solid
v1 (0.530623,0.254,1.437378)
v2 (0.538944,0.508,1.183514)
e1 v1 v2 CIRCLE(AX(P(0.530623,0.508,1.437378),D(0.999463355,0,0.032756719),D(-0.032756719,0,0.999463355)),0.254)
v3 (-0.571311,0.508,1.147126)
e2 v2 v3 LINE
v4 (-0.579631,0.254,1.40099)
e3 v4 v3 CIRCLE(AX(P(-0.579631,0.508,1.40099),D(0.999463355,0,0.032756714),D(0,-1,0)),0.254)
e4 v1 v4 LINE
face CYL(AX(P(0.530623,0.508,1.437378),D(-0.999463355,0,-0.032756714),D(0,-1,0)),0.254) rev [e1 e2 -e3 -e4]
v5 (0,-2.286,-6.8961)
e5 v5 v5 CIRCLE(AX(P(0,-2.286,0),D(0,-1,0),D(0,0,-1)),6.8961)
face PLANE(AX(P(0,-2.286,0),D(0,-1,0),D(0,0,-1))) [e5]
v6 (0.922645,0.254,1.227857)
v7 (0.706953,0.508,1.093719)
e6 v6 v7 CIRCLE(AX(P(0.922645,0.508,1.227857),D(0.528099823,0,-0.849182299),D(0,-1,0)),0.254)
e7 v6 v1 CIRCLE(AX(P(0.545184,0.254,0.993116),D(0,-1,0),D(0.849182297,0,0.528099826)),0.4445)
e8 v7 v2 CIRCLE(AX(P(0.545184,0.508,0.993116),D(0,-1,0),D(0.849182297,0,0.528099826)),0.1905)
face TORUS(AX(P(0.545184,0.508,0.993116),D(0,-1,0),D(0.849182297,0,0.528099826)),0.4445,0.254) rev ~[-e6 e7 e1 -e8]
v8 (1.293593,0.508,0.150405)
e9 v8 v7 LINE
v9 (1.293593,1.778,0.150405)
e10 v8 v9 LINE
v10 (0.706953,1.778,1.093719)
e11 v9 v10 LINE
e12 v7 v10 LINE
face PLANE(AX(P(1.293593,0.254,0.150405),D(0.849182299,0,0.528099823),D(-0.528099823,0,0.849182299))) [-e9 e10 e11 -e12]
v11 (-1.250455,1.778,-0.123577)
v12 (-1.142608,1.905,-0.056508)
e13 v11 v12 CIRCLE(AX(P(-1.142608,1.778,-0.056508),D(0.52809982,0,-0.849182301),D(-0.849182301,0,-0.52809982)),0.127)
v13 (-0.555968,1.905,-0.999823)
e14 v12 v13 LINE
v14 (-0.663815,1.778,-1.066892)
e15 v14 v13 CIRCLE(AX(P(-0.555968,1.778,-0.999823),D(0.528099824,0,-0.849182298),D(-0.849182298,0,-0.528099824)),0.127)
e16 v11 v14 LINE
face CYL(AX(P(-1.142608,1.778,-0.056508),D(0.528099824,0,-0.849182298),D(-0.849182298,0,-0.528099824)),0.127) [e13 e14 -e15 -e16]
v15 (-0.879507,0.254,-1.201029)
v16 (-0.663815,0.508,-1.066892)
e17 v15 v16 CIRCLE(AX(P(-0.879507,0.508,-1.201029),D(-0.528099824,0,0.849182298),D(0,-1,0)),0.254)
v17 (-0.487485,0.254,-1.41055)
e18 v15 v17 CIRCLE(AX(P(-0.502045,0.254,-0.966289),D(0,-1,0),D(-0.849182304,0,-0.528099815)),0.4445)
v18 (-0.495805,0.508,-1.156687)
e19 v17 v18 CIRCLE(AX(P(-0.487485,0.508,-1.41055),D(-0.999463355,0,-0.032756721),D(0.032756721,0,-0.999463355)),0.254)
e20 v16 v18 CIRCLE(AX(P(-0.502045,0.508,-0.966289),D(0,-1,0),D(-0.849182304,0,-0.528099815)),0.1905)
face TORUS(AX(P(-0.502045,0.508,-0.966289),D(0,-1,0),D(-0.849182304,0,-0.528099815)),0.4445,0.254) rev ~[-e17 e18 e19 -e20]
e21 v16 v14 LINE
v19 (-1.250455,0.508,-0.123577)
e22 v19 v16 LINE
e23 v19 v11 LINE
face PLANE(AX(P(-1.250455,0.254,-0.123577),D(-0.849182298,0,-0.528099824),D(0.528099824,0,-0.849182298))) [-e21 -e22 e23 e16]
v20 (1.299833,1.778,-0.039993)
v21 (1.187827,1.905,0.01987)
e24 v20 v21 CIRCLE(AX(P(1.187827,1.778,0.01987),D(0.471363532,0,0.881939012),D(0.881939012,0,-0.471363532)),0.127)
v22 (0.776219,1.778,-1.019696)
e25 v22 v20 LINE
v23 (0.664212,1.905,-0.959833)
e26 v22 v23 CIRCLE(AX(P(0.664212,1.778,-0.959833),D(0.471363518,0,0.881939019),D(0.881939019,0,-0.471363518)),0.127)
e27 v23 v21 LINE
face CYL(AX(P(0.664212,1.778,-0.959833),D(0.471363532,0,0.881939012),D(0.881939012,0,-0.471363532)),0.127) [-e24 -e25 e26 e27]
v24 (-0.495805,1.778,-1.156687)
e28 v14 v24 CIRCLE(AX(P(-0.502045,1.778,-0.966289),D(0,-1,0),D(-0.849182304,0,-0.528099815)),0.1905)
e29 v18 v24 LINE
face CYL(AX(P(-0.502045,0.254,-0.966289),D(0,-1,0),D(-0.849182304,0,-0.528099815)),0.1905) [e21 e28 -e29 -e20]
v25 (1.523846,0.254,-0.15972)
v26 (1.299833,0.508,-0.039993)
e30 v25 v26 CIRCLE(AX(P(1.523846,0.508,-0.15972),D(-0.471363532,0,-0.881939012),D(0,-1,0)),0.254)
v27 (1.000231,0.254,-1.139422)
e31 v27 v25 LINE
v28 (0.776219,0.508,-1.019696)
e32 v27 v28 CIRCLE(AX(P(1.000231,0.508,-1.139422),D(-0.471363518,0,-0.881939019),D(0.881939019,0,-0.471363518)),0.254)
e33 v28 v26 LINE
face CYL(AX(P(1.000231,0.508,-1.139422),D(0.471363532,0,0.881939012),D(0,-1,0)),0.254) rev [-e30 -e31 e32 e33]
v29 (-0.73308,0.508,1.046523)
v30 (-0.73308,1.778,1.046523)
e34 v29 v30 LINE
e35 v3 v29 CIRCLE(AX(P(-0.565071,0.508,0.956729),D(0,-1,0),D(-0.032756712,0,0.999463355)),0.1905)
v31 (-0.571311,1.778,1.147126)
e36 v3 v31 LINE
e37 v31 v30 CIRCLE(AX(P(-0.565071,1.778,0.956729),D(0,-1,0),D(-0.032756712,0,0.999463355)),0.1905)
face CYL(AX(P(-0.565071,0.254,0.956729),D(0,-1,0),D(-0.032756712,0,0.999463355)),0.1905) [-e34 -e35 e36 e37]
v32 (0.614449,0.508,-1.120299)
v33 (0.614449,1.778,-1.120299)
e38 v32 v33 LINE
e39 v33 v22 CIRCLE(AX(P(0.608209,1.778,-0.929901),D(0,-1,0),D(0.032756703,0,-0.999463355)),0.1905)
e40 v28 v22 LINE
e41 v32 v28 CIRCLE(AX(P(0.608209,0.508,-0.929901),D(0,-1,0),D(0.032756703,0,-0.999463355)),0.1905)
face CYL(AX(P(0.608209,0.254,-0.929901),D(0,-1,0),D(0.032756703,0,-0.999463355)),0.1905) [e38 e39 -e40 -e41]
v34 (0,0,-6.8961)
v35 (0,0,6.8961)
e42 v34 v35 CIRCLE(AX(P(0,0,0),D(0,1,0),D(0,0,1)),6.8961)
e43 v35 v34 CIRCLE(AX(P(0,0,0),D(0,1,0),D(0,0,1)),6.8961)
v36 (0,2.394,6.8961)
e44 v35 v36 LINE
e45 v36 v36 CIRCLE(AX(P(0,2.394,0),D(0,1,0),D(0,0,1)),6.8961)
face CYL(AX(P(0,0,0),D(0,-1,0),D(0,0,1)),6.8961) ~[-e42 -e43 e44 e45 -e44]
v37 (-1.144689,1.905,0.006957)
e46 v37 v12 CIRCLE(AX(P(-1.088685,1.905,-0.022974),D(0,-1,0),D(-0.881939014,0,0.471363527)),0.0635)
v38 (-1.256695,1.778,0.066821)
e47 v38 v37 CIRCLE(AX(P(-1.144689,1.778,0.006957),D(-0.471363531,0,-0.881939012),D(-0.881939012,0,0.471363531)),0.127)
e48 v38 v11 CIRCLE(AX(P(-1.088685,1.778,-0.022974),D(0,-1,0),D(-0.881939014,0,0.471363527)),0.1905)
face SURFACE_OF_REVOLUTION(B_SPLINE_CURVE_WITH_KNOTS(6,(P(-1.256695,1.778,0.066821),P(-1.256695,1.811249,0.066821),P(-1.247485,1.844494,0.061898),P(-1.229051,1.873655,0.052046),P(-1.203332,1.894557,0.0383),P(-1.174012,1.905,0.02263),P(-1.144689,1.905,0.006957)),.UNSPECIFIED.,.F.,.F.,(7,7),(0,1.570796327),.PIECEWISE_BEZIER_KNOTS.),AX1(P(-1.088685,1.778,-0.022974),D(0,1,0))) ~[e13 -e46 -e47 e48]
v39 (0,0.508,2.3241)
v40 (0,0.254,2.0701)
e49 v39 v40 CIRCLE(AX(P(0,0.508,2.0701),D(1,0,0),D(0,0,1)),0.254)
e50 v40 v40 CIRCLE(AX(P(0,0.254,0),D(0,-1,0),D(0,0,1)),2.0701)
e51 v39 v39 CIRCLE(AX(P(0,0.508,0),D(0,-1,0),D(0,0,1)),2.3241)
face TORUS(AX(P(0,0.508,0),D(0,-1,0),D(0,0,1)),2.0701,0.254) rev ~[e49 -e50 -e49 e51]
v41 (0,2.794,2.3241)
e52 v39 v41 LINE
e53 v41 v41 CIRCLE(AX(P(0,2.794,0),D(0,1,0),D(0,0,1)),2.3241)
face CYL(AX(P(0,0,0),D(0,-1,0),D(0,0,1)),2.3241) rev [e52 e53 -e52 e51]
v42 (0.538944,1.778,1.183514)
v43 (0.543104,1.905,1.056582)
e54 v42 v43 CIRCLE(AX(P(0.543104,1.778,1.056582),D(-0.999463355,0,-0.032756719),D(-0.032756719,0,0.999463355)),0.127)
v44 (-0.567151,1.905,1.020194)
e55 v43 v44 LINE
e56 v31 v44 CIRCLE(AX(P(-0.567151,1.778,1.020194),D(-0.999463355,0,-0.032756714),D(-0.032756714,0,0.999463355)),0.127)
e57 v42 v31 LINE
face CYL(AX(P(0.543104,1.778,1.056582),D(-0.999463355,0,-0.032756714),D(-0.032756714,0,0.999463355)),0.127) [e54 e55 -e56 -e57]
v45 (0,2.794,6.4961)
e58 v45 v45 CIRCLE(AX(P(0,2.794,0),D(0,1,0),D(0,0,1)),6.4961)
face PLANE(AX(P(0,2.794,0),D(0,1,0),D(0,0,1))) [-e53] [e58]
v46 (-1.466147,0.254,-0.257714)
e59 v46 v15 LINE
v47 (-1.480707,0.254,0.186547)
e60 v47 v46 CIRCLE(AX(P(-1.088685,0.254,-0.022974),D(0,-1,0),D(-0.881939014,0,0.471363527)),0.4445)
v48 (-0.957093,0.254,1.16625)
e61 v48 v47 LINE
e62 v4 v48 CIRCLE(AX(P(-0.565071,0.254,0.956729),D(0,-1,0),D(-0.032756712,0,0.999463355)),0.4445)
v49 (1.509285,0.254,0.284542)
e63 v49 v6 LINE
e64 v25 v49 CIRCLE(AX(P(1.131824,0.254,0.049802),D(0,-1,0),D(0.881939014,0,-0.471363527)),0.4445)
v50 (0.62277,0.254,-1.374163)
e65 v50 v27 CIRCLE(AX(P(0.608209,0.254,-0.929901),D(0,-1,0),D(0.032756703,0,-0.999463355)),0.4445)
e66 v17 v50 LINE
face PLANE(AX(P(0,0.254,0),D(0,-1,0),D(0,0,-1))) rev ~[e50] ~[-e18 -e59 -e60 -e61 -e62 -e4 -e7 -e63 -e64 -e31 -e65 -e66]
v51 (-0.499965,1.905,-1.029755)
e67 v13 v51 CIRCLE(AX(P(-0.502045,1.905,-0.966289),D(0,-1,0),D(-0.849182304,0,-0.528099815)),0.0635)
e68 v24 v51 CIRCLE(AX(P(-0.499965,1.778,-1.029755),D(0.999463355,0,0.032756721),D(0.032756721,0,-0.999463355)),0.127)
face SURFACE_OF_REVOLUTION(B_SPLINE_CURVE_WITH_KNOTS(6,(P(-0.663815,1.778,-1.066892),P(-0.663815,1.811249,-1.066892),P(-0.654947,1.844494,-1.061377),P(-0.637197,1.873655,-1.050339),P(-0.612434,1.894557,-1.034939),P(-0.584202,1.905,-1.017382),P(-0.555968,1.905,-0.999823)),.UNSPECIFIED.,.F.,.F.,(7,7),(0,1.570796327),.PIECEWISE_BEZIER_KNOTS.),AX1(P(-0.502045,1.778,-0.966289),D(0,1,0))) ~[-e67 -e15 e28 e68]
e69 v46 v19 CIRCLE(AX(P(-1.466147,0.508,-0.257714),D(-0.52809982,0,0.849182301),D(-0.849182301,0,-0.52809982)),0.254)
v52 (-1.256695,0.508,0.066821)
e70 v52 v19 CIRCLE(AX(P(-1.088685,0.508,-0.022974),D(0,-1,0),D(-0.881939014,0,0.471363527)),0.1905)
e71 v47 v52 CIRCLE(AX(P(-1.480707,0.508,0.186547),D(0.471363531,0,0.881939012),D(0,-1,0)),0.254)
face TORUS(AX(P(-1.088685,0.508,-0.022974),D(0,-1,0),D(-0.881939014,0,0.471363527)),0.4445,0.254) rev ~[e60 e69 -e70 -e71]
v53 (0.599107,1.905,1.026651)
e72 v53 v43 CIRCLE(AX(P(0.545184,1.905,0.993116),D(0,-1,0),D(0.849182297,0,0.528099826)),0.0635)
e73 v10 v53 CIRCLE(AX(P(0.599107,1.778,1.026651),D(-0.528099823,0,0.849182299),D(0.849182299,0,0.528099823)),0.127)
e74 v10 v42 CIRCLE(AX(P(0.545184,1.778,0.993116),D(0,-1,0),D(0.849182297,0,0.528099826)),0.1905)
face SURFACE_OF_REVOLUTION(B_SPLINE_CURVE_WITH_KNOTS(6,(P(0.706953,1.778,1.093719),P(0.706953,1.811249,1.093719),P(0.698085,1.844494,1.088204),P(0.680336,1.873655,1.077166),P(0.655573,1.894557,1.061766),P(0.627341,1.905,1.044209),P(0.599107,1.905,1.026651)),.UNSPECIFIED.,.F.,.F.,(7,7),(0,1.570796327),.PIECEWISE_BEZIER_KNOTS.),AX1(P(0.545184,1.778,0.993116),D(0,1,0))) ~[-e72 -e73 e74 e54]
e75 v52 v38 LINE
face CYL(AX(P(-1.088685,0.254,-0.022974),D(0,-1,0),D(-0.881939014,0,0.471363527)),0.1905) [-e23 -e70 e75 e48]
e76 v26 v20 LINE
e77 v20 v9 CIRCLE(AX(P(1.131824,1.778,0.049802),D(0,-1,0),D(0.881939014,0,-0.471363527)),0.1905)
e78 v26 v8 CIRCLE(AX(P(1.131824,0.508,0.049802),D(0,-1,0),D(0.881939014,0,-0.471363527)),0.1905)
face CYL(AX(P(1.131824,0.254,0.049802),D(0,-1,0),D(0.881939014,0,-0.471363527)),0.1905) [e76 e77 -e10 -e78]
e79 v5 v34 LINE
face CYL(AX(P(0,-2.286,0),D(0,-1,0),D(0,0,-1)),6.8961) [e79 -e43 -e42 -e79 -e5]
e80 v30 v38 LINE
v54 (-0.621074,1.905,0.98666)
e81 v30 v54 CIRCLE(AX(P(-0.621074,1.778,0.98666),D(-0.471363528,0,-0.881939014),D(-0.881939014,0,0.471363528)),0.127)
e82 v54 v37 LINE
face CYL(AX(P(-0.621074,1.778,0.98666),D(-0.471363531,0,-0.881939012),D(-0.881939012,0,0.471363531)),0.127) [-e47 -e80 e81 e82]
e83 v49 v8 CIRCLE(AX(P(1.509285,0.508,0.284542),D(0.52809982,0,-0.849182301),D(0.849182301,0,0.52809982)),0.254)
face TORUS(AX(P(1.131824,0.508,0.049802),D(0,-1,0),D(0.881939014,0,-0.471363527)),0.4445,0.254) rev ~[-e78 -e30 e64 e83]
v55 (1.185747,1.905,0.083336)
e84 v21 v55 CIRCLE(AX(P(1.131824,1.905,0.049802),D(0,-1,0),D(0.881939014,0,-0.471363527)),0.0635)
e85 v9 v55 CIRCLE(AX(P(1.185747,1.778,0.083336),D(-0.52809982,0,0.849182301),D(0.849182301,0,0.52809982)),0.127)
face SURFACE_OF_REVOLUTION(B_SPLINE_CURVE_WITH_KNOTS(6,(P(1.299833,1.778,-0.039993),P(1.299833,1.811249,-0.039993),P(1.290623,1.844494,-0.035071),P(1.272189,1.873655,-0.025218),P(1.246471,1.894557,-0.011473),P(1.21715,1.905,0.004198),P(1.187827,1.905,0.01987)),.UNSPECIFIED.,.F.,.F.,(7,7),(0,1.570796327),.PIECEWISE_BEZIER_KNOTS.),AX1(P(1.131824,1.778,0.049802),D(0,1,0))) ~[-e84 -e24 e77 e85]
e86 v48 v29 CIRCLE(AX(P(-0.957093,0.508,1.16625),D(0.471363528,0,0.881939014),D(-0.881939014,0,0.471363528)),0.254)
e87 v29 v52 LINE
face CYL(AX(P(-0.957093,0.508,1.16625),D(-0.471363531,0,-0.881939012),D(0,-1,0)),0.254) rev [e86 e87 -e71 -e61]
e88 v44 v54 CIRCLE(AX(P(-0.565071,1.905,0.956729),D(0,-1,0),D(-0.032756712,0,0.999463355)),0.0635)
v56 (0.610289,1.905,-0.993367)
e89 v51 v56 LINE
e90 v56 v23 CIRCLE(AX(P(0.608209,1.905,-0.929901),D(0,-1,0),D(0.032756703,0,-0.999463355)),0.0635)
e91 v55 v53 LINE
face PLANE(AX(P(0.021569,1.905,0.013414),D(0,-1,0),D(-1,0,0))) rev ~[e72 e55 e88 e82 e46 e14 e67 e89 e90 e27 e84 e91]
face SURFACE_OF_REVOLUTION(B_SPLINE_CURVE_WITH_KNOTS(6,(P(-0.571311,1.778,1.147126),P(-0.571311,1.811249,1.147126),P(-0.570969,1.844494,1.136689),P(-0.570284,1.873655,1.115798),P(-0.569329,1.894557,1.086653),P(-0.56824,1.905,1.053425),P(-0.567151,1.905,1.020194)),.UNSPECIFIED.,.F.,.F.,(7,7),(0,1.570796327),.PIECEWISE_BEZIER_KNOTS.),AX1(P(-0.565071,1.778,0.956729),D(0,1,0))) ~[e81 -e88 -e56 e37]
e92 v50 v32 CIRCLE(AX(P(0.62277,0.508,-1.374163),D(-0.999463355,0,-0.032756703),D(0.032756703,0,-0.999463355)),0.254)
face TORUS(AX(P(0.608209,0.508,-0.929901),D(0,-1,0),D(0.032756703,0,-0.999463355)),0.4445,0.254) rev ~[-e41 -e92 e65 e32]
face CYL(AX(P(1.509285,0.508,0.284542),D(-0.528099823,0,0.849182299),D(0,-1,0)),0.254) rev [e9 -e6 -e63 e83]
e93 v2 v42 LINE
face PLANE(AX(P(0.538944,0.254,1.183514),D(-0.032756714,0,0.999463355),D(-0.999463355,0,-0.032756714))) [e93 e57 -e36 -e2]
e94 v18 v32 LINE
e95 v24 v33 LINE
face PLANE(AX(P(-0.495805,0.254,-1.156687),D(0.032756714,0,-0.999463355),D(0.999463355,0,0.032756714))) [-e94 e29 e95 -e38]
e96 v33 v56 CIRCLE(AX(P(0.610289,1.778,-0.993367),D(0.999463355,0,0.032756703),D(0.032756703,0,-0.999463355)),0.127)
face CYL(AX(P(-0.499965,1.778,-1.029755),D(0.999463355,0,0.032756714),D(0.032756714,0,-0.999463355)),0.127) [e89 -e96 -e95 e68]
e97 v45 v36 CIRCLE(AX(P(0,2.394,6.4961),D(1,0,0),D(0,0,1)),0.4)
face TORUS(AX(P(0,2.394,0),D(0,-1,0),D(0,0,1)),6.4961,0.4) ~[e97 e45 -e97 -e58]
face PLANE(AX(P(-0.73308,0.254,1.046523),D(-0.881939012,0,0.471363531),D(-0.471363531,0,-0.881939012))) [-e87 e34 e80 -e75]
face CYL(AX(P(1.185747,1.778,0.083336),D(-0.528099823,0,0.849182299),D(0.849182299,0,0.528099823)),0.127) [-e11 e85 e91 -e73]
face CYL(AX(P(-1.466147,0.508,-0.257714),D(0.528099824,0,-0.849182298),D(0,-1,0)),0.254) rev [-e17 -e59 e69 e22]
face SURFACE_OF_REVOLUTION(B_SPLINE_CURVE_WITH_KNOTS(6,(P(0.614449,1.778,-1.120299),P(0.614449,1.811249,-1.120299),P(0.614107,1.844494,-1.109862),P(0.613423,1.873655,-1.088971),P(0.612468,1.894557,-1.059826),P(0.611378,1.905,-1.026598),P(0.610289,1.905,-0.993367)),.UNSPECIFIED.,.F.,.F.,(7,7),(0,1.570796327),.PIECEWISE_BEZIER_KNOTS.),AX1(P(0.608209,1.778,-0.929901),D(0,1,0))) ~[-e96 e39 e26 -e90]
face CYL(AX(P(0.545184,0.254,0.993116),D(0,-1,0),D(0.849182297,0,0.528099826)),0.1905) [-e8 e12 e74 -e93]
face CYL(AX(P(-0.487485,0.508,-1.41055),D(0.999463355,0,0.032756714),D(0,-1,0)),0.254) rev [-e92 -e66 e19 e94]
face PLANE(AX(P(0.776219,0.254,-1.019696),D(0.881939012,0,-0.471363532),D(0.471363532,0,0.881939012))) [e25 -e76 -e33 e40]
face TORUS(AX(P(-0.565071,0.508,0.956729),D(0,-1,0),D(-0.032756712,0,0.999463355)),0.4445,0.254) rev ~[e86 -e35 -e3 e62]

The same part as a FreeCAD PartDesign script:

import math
import FreeCAD as App
import Part
import Sketcher
Q = App.Units.Quantity


def edges_at(feature, points):
    """Names of the edges that pass closest to the given points."""
    edges = feature.Shape.Edges
    near = lambda p: min(range(len(edges)), key=lambda i: edges[i].distToShape(Part.Vertex(*p))[0])
    return sorted({f"Edge{near(p) + 1}" for p in points})

doc = App.newDocument("Part")
body = doc.addObject("PartDesign::Body", "Body")

# Sketch on XZ plane
sketch1 = body.newObject("Sketcher::SketchObject", "Sketch")
sketch1.AttachmentSupport = (doc.getObject("XZ_Plane"), [""])
sketch1.MapMode = "FlatFace"
sketch1.addGeometry(Part.Circle(App.Vector(0, 0, 0), App.Vector(0, 0, 1), 6.9), False)
sketch1.addGeometry(Part.Circle(App.Vector(0, 0, 0), App.Vector(0, 0, 1), 2.3), False)
sketch1.addConstraint(Sketcher.Constraint("Coincident", 0, 3, -1, 1))
sketch1.addConstraint(Sketcher.Constraint("Coincident", 1, 3, -1, 1))
sketch1.addConstraint(Sketcher.Constraint("Diameter", 0, Q("0.543 in")))
sketch1.addConstraint(Sketcher.Constraint("Diameter", 1, Q("0.183 in")))
pad1 = body.newObject("PartDesign::Pad", "Pad")
pad1.Profile = sketch1
pad1.Length = Q("0.11 in")
pad1.Reversed = True

# Sketch on XZ plane
sketch2 = body.newObject("Sketcher::SketchObject", "Sketch001")
sketch2.AttachmentSupport = (doc.getObject("XZ_Plane"), [""])
sketch2.MapMode = "FlatFace"
sketch2.addGeometry(Part.Circle(App.Vector(0, 0, 0), App.Vector(0, 0, 1), 2.3), False)
sketch2.addConstraint(Sketcher.Constraint("Coincident", 0, 3, -1, 1))
sketch2.addConstraint(Sketcher.Constraint("Diameter", 0, Q("0.183 in")))
pad2 = body.newObject("PartDesign::Pad", "Pad001")
pad2.Profile = sketch2
pad2.Length = Q("0.01 in")
pad2.Reversed = True

# Sketch on XZ plane
sketch3 = body.newObject("Sketcher::SketchObject", "Sketch002")
sketch3.AttachmentSupport = (doc.getObject("XZ_Plane"), [""])
sketch3.MapMode = "FlatFace"
sketch3.AttachmentOffset = App.Placement(App.Vector(0, 0, -0.01 * 25.4), App.Rotation())
sketch3.addGeometry(Part.LineSegment(App.Vector(0.61, -1.12, 0), App.Vector(-0.5, -1.16, 0)), False)
sketch3.addGeometry(Part.ArcOfCircle(Part.Circle(App.Vector(-0.5, -0.97, 0), App.Vector(0, 0, 1), 0.19), math.radians(-148), math.radians(-88)), False)
sketch3.addGeometry(Part.LineSegment(App.Vector(-0.66, -1.07, 0), App.Vector(-1.25, -0.12, 0)), False)
sketch3.addGeometry(Part.ArcOfCircle(Part.Circle(App.Vector(-1.09, -0.02, 0), App.Vector(0, 0, 1), 0.19), math.radians(152), math.radians(212)), False)
sketch3.addGeometry(Part.LineSegment(App.Vector(-1.26, 0.07, 0), App.Vector(-0.73, 1.05, 0)), False)
sketch3.addGeometry(Part.ArcOfCircle(Part.Circle(App.Vector(-0.57, 0.96, 0), App.Vector(0, 0, 1), 0.19), math.radians(92), math.radians(152)), False)
sketch3.addGeometry(Part.LineSegment(App.Vector(-0.57, 1.15, 0), App.Vector(0.54, 1.18, 0)), False)
sketch3.addGeometry(Part.ArcOfCircle(Part.Circle(App.Vector(0.55, 0.99, 0), App.Vector(0, 0, 1), 0.19), math.radians(32), math.radians(92)), False)
sketch3.addGeometry(Part.LineSegment(App.Vector(0.71, 1.09, 0), App.Vector(1.29, 0.15, 0)), False)
sketch3.addGeometry(Part.ArcOfCircle(Part.Circle(App.Vector(1.13, 0.05, 0), App.Vector(0, 0, 1), 0.19), math.radians(-28), math.radians(32)), False)
sketch3.addGeometry(Part.LineSegment(App.Vector(1.3, -0.04, 0), App.Vector(0.78, -1.02, 0)), False)
sketch3.addGeometry(Part.ArcOfCircle(Part.Circle(App.Vector(0.61, -0.93, 0), App.Vector(0, 0, 1), 0.19), math.radians(-88), math.radians(-28)), False)
sketch3.addConstraint(Sketcher.Constraint("Tangent", 0, 2, 1, 2))
sketch3.addConstraint(Sketcher.Constraint("Tangent", 1, 1, 2, 1))
sketch3.addConstraint(Sketcher.Constraint("Tangent", 2, 2, 3, 2))
sketch3.addConstraint(Sketcher.Constraint("Tangent", 3, 1, 4, 1))
sketch3.addConstraint(Sketcher.Constraint("Tangent", 4, 2, 5, 2))
sketch3.addConstraint(Sketcher.Constraint("Tangent", 5, 1, 6, 1))
sketch3.addConstraint(Sketcher.Constraint("Tangent", 6, 2, 7, 2))
sketch3.addConstraint(Sketcher.Constraint("Tangent", 7, 1, 8, 1))
sketch3.addConstraint(Sketcher.Constraint("Tangent", 8, 2, 9, 2))
sketch3.addConstraint(Sketcher.Constraint("Tangent", 9, 1, 10, 1))
sketch3.addConstraint(Sketcher.Constraint("Tangent", 10, 2, 11, 2))
sketch3.addConstraint(Sketcher.Constraint("Tangent", 11, 1, 0, 1))
sketch3.addConstraint(Sketcher.Constraint("Equal", 1, 3))
sketch3.addConstraint(Sketcher.Constraint("Equal", 3, 5))
sketch3.addConstraint(Sketcher.Constraint("Equal", 5, 7))
sketch3.addConstraint(Sketcher.Constraint("Equal", 7, 9))
sketch3.addConstraint(Sketcher.Constraint("Equal", 9, 11))
sketch3.addConstraint(Sketcher.Constraint("Parallel", 0, 6))
sketch3.addConstraint(Sketcher.Constraint("Parallel", 2, 8))
sketch3.addConstraint(Sketcher.Constraint("Parallel", 4, 10))
sketch3.addConstraint(Sketcher.Constraint("Equal", 0, 2))
sketch3.addConstraint(Sketcher.Constraint("Equal", 2, 4))
sketch3.addConstraint(Sketcher.Constraint("Equal", 4, 6))
sketch3.addConstraint(Sketcher.Constraint("Radius", 1, Q("0.0075 in")))
sketch3.addConstraint(Sketcher.Constraint("DistanceY", -1, 1, 9, 3, Q("0.049802 mm")))
sketch3.addConstraint(Sketcher.Constraint("DistanceY", 11, 3, -1, 1, Q("0.929901 mm")))
sketch3.addConstraint(Sketcher.Constraint("DistanceY", 2, 2, 4, 2, Q("1.1701 mm")))
sketch3.addConstraint(Sketcher.Constraint("Distance", 0, Q("1.110851 mm")))
sketch3.addConstraint(Sketcher.Constraint("DistanceY", 1, 3, -1, 1, Q("0.966289 mm")))
sketch3.addConstraint(Sketcher.Constraint("DistanceX", 5, 3, -1, 1, Q("0.565071 mm")))
pad3 = body.newObject("PartDesign::Pad", "Pad002")
pad3.Profile = sketch3
pad3.Length = Q("0.065 in")
pad3.Reversed = True

# Sketch on XZ plane
sketch4 = body.newObject("Sketcher::SketchObject", "Sketch003")
sketch4.AttachmentSupport = (doc.getObject("XZ_Plane"), [""])
sketch4.MapMode = "FlatFace"
sketch4.AttachmentOffset = App.Placement(App.Vector(0, 0, 0.09 * 25.4), App.Rotation())
sketch4.addGeometry(Part.Circle(App.Vector(0, 0, 0), App.Vector(0, 0, 1), 7), False)
sketch4.addConstraint(Sketcher.Constraint("Coincident", 0, 3, -1, 1))
sketch4.addConstraint(Sketcher.Constraint("Diameter", 0, Q("0.543 in")))
pad4 = body.newObject("PartDesign::Pad", "Pad003")
pad4.Profile = sketch4
pad4.Length = Q("0.09 in")
pad4.Reversed = True
doc.recompute()

fillet = body.newObject("PartDesign::Fillet", "Fillet")
fillet.Base = (pad4, edges_at(pad4, [
    (0, 0.254, -2.324),
    (0.709, 0.254, -1.092),
    (0.059, 0.254, -1.138),
    (-0.592, 0.254, -1.134),
    (-0.957, 0.254, -0.595),
    (-1.279, 0.254, -0.029),
    (-0.995, 0.254, 0.557),
    (-0.666, 0.254, 1.118),
    (-0.016, 0.254, 1.165),
    (0.635, 0.254, 1.161),
    (1, 0.254, 0.622),
    (1.322, 0.254, 0.056),
    (1.038, 0.254, -0.53),
]))
fillet.Radius = Q("0.01 in")
doc.recompute()

fillet2 = body.newObject("PartDesign::Fillet", "Fillet001")
fillet2.Base = (fillet, edges_at(fillet, [
    (0.709, 1.905, -1.092),
    (0.059, 1.905, -1.138),
    (-0.592, 1.905, -1.134),
    (-0.957, 1.905, -0.595),
    (-1.279, 1.905, -0.029),
    (-0.995, 1.905, 0.557),
    (-0.666, 1.905, 1.118),
    (-0.016, 1.905, 1.165),
    (0.635, 1.905, 1.161),
    (1, 1.905, 0.622),
    (1.322, 1.905, 0.056),
    (1.038, 1.905, -0.53),
]))
fillet2.Radius = Q("0.005 in")
doc.recompute()

fillet3 = body.newObject("PartDesign::Fillet", "Fillet002")
fillet3.Base = (fillet2, edges_at(fillet2, [(0, 2.794, -6.896)]))
fillet3.Radius = 0.4

doc.recompute()
